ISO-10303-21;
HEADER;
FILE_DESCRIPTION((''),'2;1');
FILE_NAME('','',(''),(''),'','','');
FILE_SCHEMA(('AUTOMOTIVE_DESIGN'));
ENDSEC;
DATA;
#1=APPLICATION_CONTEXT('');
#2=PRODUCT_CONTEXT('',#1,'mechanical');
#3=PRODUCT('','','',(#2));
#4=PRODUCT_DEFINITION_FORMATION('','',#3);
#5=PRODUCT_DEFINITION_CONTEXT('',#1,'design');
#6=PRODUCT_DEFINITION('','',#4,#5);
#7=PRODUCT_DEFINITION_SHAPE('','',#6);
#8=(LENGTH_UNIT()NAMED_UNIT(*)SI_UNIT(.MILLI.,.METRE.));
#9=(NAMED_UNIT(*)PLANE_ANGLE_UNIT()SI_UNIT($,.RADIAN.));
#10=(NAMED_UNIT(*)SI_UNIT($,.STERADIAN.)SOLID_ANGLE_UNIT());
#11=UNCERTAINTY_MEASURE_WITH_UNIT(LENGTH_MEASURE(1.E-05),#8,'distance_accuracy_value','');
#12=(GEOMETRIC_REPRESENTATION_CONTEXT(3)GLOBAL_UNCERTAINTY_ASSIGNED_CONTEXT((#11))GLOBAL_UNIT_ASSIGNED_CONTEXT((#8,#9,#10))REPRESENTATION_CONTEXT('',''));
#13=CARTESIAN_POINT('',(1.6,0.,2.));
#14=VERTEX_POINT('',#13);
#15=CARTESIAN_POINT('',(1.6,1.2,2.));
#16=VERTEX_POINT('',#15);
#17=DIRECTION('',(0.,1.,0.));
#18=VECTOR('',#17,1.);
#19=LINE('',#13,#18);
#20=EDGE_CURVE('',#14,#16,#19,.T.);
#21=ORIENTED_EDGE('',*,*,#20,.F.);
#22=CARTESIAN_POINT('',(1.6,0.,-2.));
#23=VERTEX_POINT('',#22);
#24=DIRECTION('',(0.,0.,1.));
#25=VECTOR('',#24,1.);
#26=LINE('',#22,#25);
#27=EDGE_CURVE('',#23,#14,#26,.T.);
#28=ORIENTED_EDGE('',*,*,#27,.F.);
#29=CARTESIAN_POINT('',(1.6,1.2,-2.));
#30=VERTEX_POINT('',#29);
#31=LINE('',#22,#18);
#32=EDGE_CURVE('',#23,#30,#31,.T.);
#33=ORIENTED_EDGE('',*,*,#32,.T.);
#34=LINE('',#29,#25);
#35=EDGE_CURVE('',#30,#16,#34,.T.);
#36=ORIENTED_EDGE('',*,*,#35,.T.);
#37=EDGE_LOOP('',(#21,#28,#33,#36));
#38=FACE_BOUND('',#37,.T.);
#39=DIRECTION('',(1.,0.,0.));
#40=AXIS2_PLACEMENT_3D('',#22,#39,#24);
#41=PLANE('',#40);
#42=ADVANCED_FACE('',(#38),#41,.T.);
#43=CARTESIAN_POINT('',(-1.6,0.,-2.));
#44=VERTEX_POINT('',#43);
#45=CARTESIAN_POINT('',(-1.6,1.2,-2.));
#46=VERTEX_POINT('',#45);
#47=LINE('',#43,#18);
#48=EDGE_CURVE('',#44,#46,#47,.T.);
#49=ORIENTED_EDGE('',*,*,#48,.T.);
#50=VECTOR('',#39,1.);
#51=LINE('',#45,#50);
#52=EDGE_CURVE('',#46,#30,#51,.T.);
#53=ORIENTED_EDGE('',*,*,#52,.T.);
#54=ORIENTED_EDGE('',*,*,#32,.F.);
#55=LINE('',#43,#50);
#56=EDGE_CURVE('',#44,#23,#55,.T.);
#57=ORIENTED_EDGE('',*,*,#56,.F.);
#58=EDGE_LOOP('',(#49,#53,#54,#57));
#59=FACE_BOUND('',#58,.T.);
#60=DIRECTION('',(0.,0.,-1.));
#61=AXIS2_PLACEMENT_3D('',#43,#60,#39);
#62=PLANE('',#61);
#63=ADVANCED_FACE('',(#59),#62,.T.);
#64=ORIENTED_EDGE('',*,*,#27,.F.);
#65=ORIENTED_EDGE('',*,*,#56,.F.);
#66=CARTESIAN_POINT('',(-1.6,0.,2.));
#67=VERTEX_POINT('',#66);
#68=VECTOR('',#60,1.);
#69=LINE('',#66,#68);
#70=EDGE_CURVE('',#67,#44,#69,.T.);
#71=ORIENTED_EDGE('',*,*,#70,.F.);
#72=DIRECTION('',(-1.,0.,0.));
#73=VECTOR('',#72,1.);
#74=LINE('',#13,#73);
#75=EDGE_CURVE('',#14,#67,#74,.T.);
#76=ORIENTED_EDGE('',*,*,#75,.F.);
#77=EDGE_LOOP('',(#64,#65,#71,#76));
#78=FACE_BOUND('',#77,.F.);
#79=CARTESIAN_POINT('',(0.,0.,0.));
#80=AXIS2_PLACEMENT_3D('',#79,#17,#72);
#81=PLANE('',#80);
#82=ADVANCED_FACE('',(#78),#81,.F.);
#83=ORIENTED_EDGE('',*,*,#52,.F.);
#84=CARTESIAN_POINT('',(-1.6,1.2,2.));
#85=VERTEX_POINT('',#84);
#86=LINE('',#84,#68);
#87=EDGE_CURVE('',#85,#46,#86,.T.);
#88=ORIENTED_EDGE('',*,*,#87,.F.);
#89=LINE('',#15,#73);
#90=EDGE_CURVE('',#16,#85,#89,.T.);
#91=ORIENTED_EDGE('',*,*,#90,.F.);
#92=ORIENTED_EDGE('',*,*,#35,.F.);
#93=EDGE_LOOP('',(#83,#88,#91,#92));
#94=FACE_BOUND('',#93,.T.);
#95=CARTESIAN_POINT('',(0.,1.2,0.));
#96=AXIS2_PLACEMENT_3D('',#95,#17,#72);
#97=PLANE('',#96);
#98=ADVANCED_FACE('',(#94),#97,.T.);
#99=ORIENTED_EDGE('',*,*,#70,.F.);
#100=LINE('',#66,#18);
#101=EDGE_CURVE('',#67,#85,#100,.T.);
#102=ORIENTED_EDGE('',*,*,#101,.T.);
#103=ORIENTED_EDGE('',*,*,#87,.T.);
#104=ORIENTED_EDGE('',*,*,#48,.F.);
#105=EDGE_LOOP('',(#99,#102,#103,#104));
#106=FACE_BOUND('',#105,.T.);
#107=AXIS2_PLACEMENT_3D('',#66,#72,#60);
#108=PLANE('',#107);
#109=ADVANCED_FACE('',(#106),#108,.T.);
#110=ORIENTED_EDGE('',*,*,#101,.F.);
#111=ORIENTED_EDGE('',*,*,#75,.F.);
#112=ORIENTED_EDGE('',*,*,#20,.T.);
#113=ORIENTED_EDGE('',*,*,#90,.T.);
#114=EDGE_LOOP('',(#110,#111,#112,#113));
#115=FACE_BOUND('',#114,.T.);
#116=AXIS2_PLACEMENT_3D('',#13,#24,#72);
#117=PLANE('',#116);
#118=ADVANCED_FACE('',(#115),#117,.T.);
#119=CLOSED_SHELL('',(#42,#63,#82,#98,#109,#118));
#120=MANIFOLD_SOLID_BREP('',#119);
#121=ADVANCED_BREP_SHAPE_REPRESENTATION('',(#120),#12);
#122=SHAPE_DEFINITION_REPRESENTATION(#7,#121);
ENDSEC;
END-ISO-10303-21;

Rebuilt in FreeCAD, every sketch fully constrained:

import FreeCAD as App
import Part
import Sketcher
Q = App.Units.Quantity

doc = App.newDocument("Part")
params = doc.addObject("Spreadsheet::Sheet", "Params")
for row, (alias, value) in enumerate([
    ("sketch1_height", "4 mm"),
    ("sketch1_width", "3.2 mm"),
    ("pad1_length", "1.2 mm"),
], start=1):
    params.set(f"A{row}", alias)
    params.set(f"B{row}", "=" + value)
    params.setAlias(f"B{row}", alias)

body = doc.addObject("PartDesign::Body", "Body")

# Sketch on XZ plane
sketch1 = doc.addObject("Sketcher::SketchObject", "Sketch")
body.addObject(sketch1)
sketch1.AttachmentSupport = (doc.XZ_Plane, [""])
sketch1.MapMode = "FlatFace"
sketch1.addGeometry(Part.LineSegment(App.Vector(1.6, -2, 0), App.Vector(-1.6, -2, 0)), False)
sketch1.addGeometry(Part.LineSegment(App.Vector(-1.6, -2, 0), App.Vector(-1.6, 2, 0)), False)
sketch1.addGeometry(Part.LineSegment(App.Vector(-1.6, 2, 0), App.Vector(1.6, 2, 0)), False)
sketch1.addGeometry(Part.LineSegment(App.Vector(1.6, 2, 0), App.Vector(1.6, -2, 0)), False)
sketch1.addConstraint(Sketcher.Constraint("Coincident", 0, 2, 1, 1))
sketch1.addConstraint(Sketcher.Constraint("Coincident", 1, 2, 2, 1))
sketch1.addConstraint(Sketcher.Constraint("Coincident", 2, 2, 3, 1))
sketch1.addConstraint(Sketcher.Constraint("Coincident", 3, 2, 0, 1))
sketch1.addConstraint(Sketcher.Constraint("Horizontal", 0))
sketch1.addConstraint(Sketcher.Constraint("Vertical", 1))
sketch1.addConstraint(Sketcher.Constraint("Horizontal", 2))
sketch1.addConstraint(Sketcher.Constraint("Vertical", 3))
sketch1.addConstraint(Sketcher.Constraint("Symmetric", 0, 2, 2, 2, -1, 1))
sketch1.addConstraint(Sketcher.Constraint("DistanceY", 1, 1, 1, 2, Q("4 mm")))
sketch1.addConstraint(Sketcher.Constraint("DistanceX", 0, 2, 0, 1, Q("3.2 mm")))
sketch1.setExpression("Constraints[9]", "Params.sketch1_height")
sketch1.setExpression("Constraints[10]", "Params.sketch1_width")
pad1 = doc.addObject("PartDesign::Pad", "Pad")
body.addObject(pad1)
pad1.Profile = sketch1
pad1.setExpression("Length", "Params.pad1_length")
pad1.Reversed = True

doc.recompute()
